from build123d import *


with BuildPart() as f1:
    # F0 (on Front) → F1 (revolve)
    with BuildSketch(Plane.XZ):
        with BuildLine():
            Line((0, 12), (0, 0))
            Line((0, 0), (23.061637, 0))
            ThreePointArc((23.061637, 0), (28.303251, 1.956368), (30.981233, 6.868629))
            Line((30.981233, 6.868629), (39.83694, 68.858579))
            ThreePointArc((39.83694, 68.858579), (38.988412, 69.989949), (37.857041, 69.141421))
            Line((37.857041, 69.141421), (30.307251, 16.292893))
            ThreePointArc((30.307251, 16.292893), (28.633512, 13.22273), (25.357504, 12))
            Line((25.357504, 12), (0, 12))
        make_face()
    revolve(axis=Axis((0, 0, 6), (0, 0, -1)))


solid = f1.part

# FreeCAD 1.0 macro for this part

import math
import FreeCAD as App
import Part
import Sketcher
from FreeCAD import Vector
Q = App.Units.Quantity

doc = App.newDocument("Part")
body = doc.addObject("PartDesign::Body", "Body")

sketch1 = doc.addObject("Sketcher::SketchObject", "Sketch")
body.addObject(sketch1)
sketch1.AttachmentSupport = (doc.XZ_Plane, [""])
sketch1.MapMode = "FlatFace"
sketch1.addGeometry([
    Part.LineSegment(Vector(0, 12, 0), Vector(0, 0, 0)),
    Part.LineSegment(Vector(0, 0, 0), Vector(23.1, 0, 0)),
    Part.ArcOfCircle(Part.Circle(Vector(23.1, 8, 0), Vector(0, 0, 1), 8), math.radians(-90), math.radians(-8)),
    Part.LineSegment(Vector(31, 6.9, 0), Vector(39.8, 68.9, 0)),
    Part.ArcOfCircle(Part.Circle(Vector(38.8, 69, 0), Vector(0, 0, 1), 1), math.radians(-8), math.radians(172)),
    Part.LineSegment(Vector(37.9, 69.1, 0), Vector(30.3, 16.3, 0)),
    Part.ArcOfCircle(Part.Circle(Vector(25.4, 17, 0), Vector(0, 0, 1), 5), math.radians(-90), math.radians(-8)),
    Part.LineSegment(Vector(25.4, 12, 0), Vector(0, 12, 0)),
], False)
sketch1.addConstraint([
    Sketcher.Constraint("Coincident", 0, 2, 1, 1),
    Sketcher.Constraint("Tangent", 1, 2, 2, 1),
    Sketcher.Constraint("Tangent", 2, 2, 3, 1),
    Sketcher.Constraint("Tangent", 3, 2, 4, 1),
    Sketcher.Constraint("Tangent", 4, 2, 5, 1),
    Sketcher.Constraint("Tangent", 5, 2, 6, 2),
    Sketcher.Constraint("Tangent", 6, 1, 7, 1),
    Sketcher.Constraint("Coincident", 7, 2, 0, 1),
    Sketcher.Constraint("Vertical", 0),
    Sketcher.Constraint("Horizontal", 1),
    Sketcher.Constraint("Horizontal", 7),
    Sketcher.Constraint("Coincident", 0, 2, -1, 1),
    Sketcher.Constraint("Parallel", 3, 5),
    Sketcher.Constraint("Radius", 2, Q("7.999999 mm")),
    Sketcher.Constraint("Radius", 4, Q("1 mm")),
    Sketcher.Constraint("Radius", 6, Q("5 mm")),
    Sketcher.Constraint("DistanceY", 0, 2, 0, 1, Q("12 mm")),
    Sketcher.Constraint("DistanceY", -1, 1, 4, 3, Q("69 mm")),
    Sketcher.Constraint("DistanceX", 1, 1, 1, 2, Q("23.061637 mm")),
    Sketcher.Constraint("DistanceX", 7, 2, 7, 1, Q("25.357504 mm")),
])
revolution = doc.addObject("PartDesign::Revolution", "Revolution")
body.addObject(revolution)
revolution.Profile = sketch1
revolution.ReferenceAxis = (sketch1, ["V_Axis"])
revolution.Angle = 360

doc.recompute()
